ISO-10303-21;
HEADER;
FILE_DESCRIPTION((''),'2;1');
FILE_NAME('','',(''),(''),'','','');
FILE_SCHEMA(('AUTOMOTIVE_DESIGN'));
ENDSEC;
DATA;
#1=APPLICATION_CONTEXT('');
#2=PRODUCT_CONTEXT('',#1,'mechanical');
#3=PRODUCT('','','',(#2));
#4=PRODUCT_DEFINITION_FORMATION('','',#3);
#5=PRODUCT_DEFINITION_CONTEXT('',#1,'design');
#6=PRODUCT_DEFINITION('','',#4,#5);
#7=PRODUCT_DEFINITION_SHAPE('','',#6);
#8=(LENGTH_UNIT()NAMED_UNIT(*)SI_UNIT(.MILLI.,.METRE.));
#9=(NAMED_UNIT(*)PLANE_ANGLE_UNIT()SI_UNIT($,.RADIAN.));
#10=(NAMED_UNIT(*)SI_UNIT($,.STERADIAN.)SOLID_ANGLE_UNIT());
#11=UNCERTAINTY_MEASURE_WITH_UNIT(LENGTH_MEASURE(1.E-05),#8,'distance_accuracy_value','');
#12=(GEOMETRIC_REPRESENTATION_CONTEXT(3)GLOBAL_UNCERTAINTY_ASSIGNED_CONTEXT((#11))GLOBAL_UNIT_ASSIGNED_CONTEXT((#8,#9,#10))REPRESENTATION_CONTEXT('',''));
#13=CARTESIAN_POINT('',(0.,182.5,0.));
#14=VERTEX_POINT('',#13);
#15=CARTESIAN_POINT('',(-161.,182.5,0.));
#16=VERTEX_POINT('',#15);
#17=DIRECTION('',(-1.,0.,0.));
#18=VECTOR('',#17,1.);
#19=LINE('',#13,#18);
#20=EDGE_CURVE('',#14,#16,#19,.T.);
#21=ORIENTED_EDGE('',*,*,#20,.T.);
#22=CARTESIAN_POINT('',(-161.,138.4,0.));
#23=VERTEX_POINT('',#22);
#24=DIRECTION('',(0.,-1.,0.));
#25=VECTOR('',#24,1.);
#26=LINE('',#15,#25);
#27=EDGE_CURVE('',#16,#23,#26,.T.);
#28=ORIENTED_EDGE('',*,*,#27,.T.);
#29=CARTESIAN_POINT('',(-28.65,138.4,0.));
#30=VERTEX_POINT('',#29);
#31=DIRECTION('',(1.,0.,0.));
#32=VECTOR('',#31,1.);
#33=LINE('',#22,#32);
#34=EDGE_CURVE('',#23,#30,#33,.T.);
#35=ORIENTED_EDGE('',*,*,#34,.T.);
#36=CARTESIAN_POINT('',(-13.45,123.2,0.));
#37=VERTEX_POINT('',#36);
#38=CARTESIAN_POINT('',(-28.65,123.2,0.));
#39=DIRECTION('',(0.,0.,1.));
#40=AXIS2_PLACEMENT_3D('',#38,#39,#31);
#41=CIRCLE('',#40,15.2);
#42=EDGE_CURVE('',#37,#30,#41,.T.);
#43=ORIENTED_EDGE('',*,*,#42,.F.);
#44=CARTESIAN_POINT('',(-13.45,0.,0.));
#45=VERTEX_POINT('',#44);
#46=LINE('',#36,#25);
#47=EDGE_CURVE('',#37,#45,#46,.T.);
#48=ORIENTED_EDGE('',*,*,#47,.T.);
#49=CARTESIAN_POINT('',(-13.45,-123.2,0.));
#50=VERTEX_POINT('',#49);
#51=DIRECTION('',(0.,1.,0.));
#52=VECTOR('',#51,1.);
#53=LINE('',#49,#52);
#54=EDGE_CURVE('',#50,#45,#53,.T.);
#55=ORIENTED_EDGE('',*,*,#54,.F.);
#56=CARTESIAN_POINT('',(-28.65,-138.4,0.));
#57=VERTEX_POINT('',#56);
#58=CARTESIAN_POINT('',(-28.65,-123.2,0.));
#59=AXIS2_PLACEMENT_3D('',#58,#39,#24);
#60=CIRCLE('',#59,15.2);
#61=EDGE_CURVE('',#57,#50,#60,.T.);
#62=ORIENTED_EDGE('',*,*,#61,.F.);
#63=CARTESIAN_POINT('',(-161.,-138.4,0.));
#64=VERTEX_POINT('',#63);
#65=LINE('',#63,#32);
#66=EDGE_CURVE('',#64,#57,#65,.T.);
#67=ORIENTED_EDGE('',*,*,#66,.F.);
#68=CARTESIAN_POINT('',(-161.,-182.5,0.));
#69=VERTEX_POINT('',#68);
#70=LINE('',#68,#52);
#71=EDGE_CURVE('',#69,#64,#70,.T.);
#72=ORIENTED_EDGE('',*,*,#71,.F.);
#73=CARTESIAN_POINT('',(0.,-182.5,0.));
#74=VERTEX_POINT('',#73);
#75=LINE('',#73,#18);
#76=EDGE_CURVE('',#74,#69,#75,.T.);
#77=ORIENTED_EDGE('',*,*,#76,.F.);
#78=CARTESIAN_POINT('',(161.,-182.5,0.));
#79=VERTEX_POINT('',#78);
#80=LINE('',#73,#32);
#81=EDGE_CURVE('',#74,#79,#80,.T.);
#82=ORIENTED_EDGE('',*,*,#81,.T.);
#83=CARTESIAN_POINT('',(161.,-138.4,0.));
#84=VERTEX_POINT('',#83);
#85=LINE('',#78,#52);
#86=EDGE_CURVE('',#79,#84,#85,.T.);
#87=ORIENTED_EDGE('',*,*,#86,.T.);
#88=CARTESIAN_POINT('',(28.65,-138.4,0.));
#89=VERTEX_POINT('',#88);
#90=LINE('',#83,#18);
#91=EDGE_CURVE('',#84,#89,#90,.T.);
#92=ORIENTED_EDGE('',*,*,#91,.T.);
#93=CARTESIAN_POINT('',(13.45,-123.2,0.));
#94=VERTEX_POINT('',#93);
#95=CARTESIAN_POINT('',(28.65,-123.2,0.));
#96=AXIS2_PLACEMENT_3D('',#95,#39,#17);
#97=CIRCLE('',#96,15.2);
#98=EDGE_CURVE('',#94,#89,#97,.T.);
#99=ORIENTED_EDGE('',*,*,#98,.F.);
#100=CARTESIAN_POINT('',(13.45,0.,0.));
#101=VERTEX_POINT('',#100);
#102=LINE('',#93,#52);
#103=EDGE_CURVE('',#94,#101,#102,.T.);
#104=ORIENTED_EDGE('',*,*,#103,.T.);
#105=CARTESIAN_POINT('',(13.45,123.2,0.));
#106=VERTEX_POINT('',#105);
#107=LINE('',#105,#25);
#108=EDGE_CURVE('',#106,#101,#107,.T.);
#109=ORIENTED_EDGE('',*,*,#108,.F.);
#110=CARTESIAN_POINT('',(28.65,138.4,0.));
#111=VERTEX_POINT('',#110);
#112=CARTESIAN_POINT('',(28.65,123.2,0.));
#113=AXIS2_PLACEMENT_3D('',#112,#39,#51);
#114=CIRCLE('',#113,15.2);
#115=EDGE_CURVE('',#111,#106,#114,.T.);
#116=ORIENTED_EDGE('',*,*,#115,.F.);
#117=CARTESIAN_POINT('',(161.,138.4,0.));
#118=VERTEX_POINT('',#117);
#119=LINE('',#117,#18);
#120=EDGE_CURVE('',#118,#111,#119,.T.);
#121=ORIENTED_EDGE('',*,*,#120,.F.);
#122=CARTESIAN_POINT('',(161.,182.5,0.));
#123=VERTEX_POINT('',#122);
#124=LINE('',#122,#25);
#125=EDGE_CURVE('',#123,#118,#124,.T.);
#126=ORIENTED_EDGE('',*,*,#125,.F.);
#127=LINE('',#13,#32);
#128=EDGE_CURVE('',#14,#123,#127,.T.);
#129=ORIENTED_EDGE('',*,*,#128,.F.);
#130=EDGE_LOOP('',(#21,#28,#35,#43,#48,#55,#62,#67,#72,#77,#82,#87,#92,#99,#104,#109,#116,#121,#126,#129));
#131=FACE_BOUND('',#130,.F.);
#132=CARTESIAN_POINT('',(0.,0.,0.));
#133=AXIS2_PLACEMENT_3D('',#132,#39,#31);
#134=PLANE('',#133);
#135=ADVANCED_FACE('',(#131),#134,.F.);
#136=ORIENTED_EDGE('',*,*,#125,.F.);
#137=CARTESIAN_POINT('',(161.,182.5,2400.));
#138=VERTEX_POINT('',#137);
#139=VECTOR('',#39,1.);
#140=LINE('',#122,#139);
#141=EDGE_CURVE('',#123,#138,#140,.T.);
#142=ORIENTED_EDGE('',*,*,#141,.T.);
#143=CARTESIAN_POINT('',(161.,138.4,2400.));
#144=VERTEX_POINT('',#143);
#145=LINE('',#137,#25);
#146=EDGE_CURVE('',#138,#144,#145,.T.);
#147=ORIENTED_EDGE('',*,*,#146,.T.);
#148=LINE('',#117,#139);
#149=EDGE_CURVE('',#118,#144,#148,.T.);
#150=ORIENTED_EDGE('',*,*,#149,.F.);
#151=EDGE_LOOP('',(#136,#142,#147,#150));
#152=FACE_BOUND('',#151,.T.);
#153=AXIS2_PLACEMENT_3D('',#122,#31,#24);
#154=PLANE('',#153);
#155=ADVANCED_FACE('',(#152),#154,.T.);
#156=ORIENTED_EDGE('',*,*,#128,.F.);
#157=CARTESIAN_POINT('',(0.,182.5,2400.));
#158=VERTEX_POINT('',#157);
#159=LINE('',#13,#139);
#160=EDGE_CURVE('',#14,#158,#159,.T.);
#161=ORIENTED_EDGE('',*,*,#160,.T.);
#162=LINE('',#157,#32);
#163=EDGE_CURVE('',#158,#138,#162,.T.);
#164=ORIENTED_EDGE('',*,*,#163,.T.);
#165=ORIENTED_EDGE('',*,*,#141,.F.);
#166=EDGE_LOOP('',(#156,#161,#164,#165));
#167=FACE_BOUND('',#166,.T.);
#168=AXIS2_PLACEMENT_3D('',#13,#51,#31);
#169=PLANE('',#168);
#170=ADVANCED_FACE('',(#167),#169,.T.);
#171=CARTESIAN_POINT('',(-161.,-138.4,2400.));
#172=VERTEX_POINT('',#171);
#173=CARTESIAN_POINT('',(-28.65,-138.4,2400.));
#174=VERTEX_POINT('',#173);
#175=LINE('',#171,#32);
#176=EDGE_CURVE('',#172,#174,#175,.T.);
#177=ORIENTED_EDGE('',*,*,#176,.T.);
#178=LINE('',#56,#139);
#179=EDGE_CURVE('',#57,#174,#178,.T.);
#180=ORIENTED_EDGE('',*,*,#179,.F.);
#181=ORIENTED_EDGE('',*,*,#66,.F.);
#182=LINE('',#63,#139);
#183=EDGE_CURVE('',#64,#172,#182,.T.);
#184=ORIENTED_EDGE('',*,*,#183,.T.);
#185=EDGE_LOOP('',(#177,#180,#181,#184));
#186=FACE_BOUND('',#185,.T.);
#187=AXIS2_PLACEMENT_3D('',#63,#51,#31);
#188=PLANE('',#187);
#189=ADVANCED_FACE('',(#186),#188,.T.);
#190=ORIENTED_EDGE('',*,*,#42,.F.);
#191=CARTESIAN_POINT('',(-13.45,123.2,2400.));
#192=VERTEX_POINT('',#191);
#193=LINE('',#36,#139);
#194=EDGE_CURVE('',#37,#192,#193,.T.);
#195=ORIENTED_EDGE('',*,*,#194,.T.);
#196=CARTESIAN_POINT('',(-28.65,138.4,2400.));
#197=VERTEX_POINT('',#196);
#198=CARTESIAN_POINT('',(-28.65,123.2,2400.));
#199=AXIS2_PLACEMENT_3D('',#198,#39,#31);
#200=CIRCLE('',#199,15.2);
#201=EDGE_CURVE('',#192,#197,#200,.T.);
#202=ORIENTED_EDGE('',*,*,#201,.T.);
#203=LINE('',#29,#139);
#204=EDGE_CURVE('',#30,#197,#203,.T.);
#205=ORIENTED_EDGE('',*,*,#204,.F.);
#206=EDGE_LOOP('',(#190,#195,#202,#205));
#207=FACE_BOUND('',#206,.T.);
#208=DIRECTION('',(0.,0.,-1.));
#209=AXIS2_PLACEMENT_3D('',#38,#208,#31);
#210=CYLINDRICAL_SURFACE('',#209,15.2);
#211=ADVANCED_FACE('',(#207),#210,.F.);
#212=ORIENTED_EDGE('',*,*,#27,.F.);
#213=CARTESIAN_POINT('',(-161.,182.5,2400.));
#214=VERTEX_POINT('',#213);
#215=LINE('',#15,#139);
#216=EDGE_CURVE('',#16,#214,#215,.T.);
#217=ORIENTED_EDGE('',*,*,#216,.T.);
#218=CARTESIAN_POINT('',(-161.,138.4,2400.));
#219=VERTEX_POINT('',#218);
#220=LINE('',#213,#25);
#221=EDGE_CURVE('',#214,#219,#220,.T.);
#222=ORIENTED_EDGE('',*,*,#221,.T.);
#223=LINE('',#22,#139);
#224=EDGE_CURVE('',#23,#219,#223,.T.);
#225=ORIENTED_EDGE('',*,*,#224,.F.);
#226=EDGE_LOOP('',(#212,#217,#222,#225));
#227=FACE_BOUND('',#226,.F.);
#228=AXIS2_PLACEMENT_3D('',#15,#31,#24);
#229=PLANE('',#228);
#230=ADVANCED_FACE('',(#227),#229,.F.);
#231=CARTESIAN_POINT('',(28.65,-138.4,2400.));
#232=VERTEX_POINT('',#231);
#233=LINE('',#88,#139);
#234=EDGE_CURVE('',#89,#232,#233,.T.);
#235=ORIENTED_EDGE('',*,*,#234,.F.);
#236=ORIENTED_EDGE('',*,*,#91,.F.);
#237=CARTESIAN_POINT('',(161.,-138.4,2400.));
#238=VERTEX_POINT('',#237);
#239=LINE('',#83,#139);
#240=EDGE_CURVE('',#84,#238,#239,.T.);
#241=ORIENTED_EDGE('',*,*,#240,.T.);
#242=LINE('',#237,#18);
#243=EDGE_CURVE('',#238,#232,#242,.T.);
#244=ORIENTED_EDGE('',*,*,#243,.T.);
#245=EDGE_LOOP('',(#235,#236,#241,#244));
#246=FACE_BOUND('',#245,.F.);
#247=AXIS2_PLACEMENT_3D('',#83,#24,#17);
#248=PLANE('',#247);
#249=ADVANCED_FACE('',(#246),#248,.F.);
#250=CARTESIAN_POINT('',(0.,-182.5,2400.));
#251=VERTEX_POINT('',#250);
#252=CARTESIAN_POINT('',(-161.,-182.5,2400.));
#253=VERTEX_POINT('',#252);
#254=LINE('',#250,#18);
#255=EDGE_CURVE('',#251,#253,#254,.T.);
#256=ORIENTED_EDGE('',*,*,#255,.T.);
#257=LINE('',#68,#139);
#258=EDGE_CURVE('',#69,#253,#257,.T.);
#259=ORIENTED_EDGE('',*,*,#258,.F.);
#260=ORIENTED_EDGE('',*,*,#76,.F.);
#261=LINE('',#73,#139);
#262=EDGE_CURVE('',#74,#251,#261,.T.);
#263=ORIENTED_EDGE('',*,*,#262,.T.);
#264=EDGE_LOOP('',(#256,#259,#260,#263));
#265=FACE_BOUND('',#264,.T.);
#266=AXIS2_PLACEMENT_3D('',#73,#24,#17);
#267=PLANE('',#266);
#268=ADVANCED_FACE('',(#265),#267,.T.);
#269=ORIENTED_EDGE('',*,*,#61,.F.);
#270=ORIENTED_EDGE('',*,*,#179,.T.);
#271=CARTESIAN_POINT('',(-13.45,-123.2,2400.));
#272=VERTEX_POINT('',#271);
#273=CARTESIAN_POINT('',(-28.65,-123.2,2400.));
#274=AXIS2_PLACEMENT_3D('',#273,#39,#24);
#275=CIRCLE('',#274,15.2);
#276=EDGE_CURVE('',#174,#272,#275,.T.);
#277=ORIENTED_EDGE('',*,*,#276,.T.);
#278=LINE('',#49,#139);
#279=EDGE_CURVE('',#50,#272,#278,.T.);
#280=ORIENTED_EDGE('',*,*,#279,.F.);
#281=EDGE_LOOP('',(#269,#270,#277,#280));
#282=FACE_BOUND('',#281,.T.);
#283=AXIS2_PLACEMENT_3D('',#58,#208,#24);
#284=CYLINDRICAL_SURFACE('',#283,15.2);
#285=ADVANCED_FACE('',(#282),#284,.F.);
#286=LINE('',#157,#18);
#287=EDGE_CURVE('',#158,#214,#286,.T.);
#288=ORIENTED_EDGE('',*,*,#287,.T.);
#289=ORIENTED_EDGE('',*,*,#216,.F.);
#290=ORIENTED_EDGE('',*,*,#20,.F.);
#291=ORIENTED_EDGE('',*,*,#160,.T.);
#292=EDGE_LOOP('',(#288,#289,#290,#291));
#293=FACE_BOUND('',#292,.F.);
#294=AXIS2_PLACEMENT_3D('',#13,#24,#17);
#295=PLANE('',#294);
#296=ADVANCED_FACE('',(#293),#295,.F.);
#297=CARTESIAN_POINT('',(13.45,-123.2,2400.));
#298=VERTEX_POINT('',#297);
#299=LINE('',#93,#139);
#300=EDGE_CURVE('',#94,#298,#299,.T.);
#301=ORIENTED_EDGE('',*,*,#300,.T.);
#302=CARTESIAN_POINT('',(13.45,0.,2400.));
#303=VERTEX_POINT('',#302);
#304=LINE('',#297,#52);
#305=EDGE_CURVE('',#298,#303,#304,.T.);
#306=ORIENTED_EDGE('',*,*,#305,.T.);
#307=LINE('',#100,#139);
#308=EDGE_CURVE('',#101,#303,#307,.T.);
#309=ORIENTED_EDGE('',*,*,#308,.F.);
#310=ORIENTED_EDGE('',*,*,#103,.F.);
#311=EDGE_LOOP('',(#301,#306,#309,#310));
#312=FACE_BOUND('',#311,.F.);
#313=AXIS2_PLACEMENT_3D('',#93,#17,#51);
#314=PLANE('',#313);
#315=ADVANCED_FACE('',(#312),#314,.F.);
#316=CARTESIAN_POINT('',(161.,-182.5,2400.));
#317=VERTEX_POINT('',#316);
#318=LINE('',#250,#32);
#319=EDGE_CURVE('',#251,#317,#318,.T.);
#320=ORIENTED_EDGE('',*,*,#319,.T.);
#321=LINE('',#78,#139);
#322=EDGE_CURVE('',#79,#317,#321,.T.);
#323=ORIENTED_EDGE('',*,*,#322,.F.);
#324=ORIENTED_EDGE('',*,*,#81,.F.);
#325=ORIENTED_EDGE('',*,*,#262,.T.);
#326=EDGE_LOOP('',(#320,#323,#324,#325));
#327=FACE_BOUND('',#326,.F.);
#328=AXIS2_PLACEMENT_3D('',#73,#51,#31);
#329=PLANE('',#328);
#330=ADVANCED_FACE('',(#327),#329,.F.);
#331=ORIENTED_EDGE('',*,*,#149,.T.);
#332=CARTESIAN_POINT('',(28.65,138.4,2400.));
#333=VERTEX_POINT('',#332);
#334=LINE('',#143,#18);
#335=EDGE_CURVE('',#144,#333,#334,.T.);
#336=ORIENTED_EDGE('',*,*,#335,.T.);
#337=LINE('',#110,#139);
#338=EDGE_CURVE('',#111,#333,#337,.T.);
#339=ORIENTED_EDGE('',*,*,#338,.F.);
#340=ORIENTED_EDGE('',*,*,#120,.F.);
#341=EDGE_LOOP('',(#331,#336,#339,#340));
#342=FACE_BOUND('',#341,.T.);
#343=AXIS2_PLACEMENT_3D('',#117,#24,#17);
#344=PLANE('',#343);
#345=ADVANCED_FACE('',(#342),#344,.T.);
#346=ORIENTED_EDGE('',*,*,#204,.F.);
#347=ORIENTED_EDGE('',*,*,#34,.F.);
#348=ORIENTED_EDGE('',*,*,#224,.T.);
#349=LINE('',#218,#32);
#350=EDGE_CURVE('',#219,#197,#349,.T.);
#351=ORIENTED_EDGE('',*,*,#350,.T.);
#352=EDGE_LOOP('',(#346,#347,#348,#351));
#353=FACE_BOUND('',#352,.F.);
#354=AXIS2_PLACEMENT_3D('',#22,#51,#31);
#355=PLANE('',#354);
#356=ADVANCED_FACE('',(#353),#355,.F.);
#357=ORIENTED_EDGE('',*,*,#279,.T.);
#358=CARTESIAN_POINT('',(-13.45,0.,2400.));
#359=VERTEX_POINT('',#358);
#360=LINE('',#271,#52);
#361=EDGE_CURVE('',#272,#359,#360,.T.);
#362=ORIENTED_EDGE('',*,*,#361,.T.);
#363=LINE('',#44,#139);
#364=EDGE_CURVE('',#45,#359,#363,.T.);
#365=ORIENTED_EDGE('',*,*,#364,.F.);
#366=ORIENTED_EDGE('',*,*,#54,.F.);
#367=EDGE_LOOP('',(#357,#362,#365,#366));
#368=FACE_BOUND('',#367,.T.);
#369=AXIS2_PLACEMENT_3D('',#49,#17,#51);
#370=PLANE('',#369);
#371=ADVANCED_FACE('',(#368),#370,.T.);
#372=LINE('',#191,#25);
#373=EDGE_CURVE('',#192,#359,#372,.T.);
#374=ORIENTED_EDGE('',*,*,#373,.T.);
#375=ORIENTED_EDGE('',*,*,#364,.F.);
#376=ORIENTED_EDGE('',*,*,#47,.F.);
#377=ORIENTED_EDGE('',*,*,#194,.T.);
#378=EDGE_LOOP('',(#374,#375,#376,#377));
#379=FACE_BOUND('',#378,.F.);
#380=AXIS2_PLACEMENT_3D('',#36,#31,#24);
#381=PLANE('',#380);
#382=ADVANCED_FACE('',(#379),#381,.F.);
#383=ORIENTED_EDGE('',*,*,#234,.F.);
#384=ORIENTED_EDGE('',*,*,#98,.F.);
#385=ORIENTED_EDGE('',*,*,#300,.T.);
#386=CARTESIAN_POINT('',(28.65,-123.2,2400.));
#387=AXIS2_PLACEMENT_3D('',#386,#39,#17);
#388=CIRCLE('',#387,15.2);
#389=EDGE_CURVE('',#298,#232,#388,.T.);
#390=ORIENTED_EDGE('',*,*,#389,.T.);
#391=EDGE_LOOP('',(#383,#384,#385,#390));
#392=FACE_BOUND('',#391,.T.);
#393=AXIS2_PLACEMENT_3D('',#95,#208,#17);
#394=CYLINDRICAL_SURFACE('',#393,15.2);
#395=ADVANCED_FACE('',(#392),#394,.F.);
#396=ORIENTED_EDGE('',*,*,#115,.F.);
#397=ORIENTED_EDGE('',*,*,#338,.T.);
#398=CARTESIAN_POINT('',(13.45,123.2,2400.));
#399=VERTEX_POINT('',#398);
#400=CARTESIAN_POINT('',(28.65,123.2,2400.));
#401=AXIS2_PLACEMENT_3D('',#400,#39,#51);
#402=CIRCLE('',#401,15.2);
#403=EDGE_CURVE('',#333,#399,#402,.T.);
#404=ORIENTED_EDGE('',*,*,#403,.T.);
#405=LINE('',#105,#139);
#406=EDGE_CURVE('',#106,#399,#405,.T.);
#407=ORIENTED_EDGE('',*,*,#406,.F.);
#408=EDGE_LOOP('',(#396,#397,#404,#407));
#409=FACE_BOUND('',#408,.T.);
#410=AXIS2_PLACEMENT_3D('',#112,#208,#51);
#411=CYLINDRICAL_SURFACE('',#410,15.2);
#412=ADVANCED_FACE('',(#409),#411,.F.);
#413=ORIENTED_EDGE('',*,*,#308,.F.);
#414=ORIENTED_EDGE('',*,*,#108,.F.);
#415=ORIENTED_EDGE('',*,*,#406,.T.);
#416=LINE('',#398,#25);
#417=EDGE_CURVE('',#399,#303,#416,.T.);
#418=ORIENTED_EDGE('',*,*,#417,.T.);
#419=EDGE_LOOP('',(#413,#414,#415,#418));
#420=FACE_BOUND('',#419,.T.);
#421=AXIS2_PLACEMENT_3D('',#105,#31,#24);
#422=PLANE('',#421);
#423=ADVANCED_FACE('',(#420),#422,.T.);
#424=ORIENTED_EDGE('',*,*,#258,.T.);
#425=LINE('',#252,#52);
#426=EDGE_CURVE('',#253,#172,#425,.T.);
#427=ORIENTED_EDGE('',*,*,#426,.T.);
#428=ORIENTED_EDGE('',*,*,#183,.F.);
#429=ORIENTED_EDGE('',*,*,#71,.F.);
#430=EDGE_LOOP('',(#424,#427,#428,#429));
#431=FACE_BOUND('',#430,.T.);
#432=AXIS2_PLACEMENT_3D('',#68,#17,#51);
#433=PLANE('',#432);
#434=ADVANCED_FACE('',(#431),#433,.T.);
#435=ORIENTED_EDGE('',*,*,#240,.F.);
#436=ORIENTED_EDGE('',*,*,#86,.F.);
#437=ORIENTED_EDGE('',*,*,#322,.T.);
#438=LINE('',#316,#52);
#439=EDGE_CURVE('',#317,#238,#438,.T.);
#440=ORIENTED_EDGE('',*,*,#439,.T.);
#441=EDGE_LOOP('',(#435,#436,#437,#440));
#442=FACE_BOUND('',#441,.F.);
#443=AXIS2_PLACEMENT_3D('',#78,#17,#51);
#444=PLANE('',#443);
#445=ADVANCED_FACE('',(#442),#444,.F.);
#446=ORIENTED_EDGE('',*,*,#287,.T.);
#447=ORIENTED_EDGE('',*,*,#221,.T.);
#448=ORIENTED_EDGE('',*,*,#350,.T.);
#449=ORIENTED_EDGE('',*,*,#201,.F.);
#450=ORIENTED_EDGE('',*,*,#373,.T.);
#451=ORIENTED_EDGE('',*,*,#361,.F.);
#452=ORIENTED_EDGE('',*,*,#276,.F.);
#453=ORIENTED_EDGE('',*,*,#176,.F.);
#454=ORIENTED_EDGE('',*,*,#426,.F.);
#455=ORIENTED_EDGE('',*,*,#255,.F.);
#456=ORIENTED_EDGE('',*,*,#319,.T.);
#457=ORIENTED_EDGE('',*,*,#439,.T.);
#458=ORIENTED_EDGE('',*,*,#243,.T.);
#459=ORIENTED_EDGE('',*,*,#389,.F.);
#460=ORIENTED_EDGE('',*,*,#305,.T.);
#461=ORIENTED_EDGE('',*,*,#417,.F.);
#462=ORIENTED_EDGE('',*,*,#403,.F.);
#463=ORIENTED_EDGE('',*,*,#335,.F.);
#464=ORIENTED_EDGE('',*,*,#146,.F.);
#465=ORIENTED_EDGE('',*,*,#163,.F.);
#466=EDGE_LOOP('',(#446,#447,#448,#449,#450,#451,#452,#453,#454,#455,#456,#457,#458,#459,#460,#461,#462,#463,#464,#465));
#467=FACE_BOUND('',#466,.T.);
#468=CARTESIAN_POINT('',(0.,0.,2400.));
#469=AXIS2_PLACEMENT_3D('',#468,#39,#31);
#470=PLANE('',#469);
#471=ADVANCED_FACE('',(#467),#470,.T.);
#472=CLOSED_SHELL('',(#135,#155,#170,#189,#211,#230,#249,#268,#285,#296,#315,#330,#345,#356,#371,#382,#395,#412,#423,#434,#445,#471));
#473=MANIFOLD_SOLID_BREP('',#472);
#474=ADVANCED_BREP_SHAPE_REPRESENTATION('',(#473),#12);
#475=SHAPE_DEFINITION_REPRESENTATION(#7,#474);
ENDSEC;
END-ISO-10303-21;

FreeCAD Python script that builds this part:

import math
import FreeCAD as App
import Part
import Sketcher
from FreeCAD import Vector

doc = App.newDocument("Part")
body = doc.addObject("PartDesign::Body", "Body")

sketch1 = body.newObject("Sketcher::SketchObject", "Sketch")
sketch1.AttachmentSupport = (doc.getObject("XY_Plane"), [""])
sketch1.MapMode = "FlatFace"
sketch1.addGeometry([
    Part.LineSegment(Vector(-161, -138.4, 0), Vector(-161, -182.5, 0)),
    Part.LineSegment(Vector(-161, -182.5, 0), Vector(161, -182.5, 0)),
    Part.LineSegment(Vector(161, -182.5, 0), Vector(161, -138.4, 0)),
    Part.LineSegment(Vector(161, -138.4, 0), Vector(28.65, -138.4, 0)),
    Part.ArcOfCircle(Part.Circle(Vector(28.65, -123.2, 0), Vector(0, 0, 1), 15.2), math.radians(180), math.radians(270)),
    Part.LineSegment(Vector(13.45, -123.2, 0), Vector(13.45, 123.2, 0)),
    Part.ArcOfCircle(Part.Circle(Vector(28.65, 123.2, 0), Vector(0, 0, 1), 15.2), math.radians(90), math.radians(180)),
    Part.LineSegment(Vector(28.65, 138.4, 0), Vector(161, 138.4, 0)),
    Part.LineSegment(Vector(161, 138.4, 0), Vector(161, 182.5, 0)),
    Part.LineSegment(Vector(161, 182.5, 0), Vector(-161, 182.5, 0)),
    Part.LineSegment(Vector(-161, 182.5, 0), Vector(-161, 138.4, 0)),
    Part.LineSegment(Vector(-161, 138.4, 0), Vector(-28.65, 138.4, 0)),
    Part.ArcOfCircle(Part.Circle(Vector(-28.65, 123.2, 0), Vector(0, 0, 1), 15.2), math.radians(0), math.radians(90)),
    Part.LineSegment(Vector(-13.45, 123.2, 0), Vector(-13.45, -123.2, 0)),
    Part.ArcOfCircle(Part.Circle(Vector(-28.65, -123.2, 0), Vector(0, 0, 1), 15.2), math.radians(-90), math.radians(0)),
    Part.LineSegment(Vector(-28.65, -138.4, 0), Vector(-161, -138.4, 0)),
], False)
sketch1.addConstraint([
    Sketcher.Constraint("Coincident", 0, 2, 1, 1),
    Sketcher.Constraint("Coincident", 1, 2, 2, 1),
    Sketcher.Constraint("Coincident", 2, 2, 3, 1),
    Sketcher.Constraint("Tangent", 3, 2, 4, 2),
    Sketcher.Constraint("Tangent", 4, 1, 5, 1),
    Sketcher.Constraint("Tangent", 5, 2, 6, 2),
    Sketcher.Constraint("Tangent", 6, 1, 7, 1),
    Sketcher.Constraint("Coincident", 7, 2, 8, 1),
    Sketcher.Constraint("Coincident", 8, 2, 9, 1),
    Sketcher.Constraint("Coincident", 9, 2, 10, 1),
    Sketcher.Constraint("Coincident", 10, 2, 11, 1),
    Sketcher.Constraint("Tangent", 11, 2, 12, 2),
    Sketcher.Constraint("Tangent", 12, 1, 13, 1),
    Sketcher.Constraint("Tangent", 13, 2, 14, 2),
    Sketcher.Constraint("Tangent", 14, 1, 15, 1),
    Sketcher.Constraint("Coincident", 15, 2, 0, 1),
    Sketcher.Constraint("Vertical", 0),
    Sketcher.Constraint("Horizontal", 1),
    Sketcher.Constraint("Vertical", 2),
    Sketcher.Constraint("Horizontal", 3),
    Sketcher.Constraint("Vertical", 5),
    Sketcher.Constraint("Horizontal", 7),
    Sketcher.Constraint("Vertical", 8),
    Sketcher.Constraint("Horizontal", 9),
    Sketcher.Constraint("Vertical", 10),
    Sketcher.Constraint("Horizontal", 11),
    Sketcher.Constraint("Vertical", 13),
    Sketcher.Constraint("Horizontal", 15),
    Sketcher.Constraint("Equal", 4, 6),
    Sketcher.Constraint("Equal", 6, 12),
    Sketcher.Constraint("Equal", 12, 14),
    Sketcher.Constraint("Symmetric", 4, 3, 12, 3, -1, 1),
    Sketcher.Constraint("Symmetric", 0, 2, 8, 2, -1, 1),
    Sketcher.Constraint("Symmetric", 7, 2, 10, 2, -2),
    Sketcher.Constraint("Symmetric", 2, 2, 15, 2, -2),
    Sketcher.Constraint("Radius", 4, 15.2),
    Sketcher.Constraint("DistanceY", 0, 2, 0, 1, 44.1),
    Sketcher.Constraint("DistanceX", 0, 2, -1, 1, 161.0),
    Sketcher.Constraint("DistanceY", 0, 2, -1, 1, 182.5),
    Sketcher.Constraint("DistanceX", -1, 1, 4, 1, 13.45),
])
pad1 = body.newObject("PartDesign::Pad", "Pad")
pad1.Profile = sketch1
pad1.Length = 2400

doc.recompute()
